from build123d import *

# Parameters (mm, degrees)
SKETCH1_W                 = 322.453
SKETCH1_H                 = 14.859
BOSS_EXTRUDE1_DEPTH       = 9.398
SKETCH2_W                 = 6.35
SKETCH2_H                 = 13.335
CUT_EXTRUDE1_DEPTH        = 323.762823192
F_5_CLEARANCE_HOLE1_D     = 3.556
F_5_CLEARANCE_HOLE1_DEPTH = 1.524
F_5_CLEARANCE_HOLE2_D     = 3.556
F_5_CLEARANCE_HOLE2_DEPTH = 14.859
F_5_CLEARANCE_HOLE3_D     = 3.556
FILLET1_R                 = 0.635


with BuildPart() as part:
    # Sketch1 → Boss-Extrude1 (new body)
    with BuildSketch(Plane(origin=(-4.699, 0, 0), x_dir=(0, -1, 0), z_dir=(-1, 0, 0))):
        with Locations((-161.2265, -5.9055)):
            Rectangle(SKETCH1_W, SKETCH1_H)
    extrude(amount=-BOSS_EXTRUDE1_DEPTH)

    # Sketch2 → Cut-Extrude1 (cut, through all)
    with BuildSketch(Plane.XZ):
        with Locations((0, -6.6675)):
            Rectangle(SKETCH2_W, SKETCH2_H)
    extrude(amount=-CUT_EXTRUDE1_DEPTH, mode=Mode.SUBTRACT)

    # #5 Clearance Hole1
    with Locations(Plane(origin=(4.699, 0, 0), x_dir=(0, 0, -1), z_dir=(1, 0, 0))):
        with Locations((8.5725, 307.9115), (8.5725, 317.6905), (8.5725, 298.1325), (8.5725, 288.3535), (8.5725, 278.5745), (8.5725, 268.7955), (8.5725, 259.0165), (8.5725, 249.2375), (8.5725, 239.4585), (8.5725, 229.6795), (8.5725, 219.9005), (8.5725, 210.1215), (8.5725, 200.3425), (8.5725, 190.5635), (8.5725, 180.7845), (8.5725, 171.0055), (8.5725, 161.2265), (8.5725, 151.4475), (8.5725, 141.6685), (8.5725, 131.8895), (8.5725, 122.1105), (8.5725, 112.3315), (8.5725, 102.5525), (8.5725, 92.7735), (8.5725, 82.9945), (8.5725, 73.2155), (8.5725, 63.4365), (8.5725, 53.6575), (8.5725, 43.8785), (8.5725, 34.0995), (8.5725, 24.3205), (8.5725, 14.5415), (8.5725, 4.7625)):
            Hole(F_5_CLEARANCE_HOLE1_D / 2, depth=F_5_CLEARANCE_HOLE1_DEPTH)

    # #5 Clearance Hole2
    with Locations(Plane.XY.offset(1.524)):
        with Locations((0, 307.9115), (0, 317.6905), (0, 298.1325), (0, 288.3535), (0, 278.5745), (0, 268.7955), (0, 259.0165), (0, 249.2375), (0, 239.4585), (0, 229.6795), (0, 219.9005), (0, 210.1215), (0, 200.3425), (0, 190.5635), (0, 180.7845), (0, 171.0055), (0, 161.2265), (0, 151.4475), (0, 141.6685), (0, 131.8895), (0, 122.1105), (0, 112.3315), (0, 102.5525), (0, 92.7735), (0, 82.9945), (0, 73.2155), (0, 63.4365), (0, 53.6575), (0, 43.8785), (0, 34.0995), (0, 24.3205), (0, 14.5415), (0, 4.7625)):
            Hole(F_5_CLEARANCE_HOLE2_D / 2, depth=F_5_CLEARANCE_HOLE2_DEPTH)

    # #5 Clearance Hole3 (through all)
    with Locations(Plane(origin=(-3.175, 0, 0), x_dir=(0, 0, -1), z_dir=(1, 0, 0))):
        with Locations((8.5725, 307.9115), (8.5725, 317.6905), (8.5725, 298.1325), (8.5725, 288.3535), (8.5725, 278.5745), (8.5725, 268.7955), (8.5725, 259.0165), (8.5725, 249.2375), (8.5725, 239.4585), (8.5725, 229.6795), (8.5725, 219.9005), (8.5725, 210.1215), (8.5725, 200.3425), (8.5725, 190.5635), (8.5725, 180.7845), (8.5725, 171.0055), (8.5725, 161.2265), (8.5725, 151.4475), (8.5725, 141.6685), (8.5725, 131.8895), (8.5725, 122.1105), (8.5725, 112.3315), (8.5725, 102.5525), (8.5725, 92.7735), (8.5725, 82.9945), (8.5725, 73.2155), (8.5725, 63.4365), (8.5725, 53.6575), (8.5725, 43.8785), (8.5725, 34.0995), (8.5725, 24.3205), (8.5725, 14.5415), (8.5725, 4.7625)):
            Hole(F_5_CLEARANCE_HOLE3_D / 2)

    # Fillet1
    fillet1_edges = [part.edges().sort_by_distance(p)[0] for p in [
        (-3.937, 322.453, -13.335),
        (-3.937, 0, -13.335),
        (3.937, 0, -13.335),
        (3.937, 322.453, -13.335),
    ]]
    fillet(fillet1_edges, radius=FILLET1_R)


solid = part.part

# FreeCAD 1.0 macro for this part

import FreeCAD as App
import Part
import Sketcher

V = App.Vector
Q = App.Units.Quantity


def edges_at(feature, points):
    """Names of the edges that pass closest to the given points."""
    edges = feature.Shape.Edges
    near = lambda p: min(range(len(edges)), key=lambda i: edges[i].distToShape(Part.Vertex(*p))[0])
    return sorted({f"Edge{near(p) + 1}" for p in points})

doc = App.newDocument("Part")
params = doc.addObject("Spreadsheet::Sheet", "Params")
for row, (alias, value) in enumerate([
    ("sketch1_width", "12.695 in"),
    ("sketch1_height", "0.585 in"),
    ("pad1_length", "0.37 in"),
    ("sketch2_width", "0.25 in"),
    ("sketch2_height", "0.525 in"),
    ("sketch3_diameter", "0.14 in"),
    ("hole_diameter", "0.14 in"),
    ("hole_depth", "0.06 in"),
    ("sketch4_diameter", "0.14 in"),
    ("hole2_diameter", "0.14 in"),
    ("hole2_depth", "0.585 in"),
    ("sketch5_diameter", "0.14 in"),
    ("hole3_diameter", "0.14 in"),
    ("fillet_radius", "0.025 in"),
], start=1):
    params.set(f"A{row}", alias)
    params.set(f"B{row}", "=" + value)
    params.setAlias(f"B{row}", alias)

body = doc.addObject("PartDesign::Body", "Body")

# Sketch on YZ plane
sketch1 = doc.addObject("Sketcher::SketchObject", "Sketch")
body.addObject(sketch1)
sketch1.AttachmentSupport = (doc.YZ_Plane, [""])
sketch1.MapMode = "FlatFace"
sketch1.AttachmentOffset = App.Placement(V(0, 0, -0.185 * 25.4), App.Rotation())
sketch1.addGeometry(Part.LineSegment(V(322.453, 1.524, 0), V(322.453, -13.335, 0)), False)
sketch1.addGeometry(Part.LineSegment(V(322.453, -13.335, 0), V(0, -13.335, 0)), False)
sketch1.addGeometry(Part.LineSegment(V(0, -13.335, 0), V(0, 1.524, 0)), False)
sketch1.addGeometry(Part.LineSegment(V(0, 1.524, 0), V(322.453, 1.524, 0)), False)
sketch1.addConstraint(Sketcher.Constraint("Coincident", 0, 2, 1, 1))
sketch1.addConstraint(Sketcher.Constraint("Coincident", 1, 2, 2, 1))
sketch1.addConstraint(Sketcher.Constraint("Coincident", 2, 2, 3, 1))
sketch1.addConstraint(Sketcher.Constraint("Coincident", 3, 2, 0, 1))
sketch1.addConstraint(Sketcher.Constraint("Vertical", 0))
sketch1.addConstraint(Sketcher.Constraint("Horizontal", 1))
sketch1.addConstraint(Sketcher.Constraint("Vertical", 2))
sketch1.addConstraint(Sketcher.Constraint("Horizontal", 3))
sketch1.addConstraint(Sketcher.Constraint("PointOnObject", 1, 2, -2))
sketch1.addConstraint(Sketcher.Constraint("DistanceX", 1, 2, 1, 1, Q("12.695 in")))
sketch1.addConstraint(Sketcher.Constraint("DistanceY", 0, 2, 0, 1, Q("0.585 in")))
sketch1.addConstraint(Sketcher.Constraint("DistanceY", -1, 1, 2, 2, Q("0.06 in")))
sketch1.setExpression("Constraints[9]", "Params.sketch1_width")
sketch1.setExpression("Constraints[10]", "Params.sketch1_height")
pad1 = doc.addObject("PartDesign::Pad", "Pad")
body.addObject(pad1)
pad1.Profile = sketch1
pad1.setExpression("Length", "Params.pad1_length")

# Sketch on XZ plane
sketch2 = doc.addObject("Sketcher::SketchObject", "Sketch001")
body.addObject(sketch2)
sketch2.AttachmentSupport = (doc.XZ_Plane, [""])
sketch2.MapMode = "FlatFace"
sketch2.addGeometry(Part.LineSegment(V(-3.175, 0, 0), V(-3.175, -13.335, 0)), False)
sketch2.addGeometry(Part.LineSegment(V(-3.175, -13.335, 0), V(3.175, -13.335, 0)), False)
sketch2.addGeometry(Part.LineSegment(V(3.175, -13.335, 0), V(3.175, 0, 0)), False)
sketch2.addGeometry(Part.LineSegment(V(3.175, 0, 0), V(-3.175, 0, 0)), False)
sketch2.addConstraint(Sketcher.Constraint("Coincident", 0, 2, 1, 1))
sketch2.addConstraint(Sketcher.Constraint("Coincident", 1, 2, 2, 1))
sketch2.addConstraint(Sketcher.Constraint("Coincident", 2, 2, 3, 1))
sketch2.addConstraint(Sketcher.Constraint("Coincident", 3, 2, 0, 1))
sketch2.addConstraint(Sketcher.Constraint("Vertical", 0))
sketch2.addConstraint(Sketcher.Constraint("Horizontal", 1))
sketch2.addConstraint(Sketcher.Constraint("Vertical", 2))
sketch2.addConstraint(Sketcher.Constraint("Horizontal", 3))
sketch2.addConstraint(Sketcher.Constraint("Symmetric", 2, 2, 3, 2, -1, 1))
sketch2.addConstraint(Sketcher.Constraint("DistanceX", 1, 1, 1, 2, Q("0.25 in")))
sketch2.addConstraint(Sketcher.Constraint("DistanceY", 0, 2, 0, 1, Q("0.525 in")))
sketch2.setExpression("Constraints[9]", "Params.sketch2_width")
sketch2.setExpression("Constraints[10]", "Params.sketch2_height")
pocket1 = doc.addObject("PartDesign::Pocket", "Pocket")
body.addObject(pocket1)
pocket1.Profile = sketch2
pocket1.Type = "ThroughAll"

# Sketch on YZ plane
sketch3 = doc.addObject("Sketcher::SketchObject", "Sketch002")
body.addObject(sketch3)
sketch3.AttachmentSupport = (doc.YZ_Plane, [""])
sketch3.MapMode = "FlatFace"
sketch3.AttachmentOffset = App.Placement(V(0, 0, 0.185 * 25.4), App.Rotation())
sketch3.addGeometry(Part.Circle(V(307.9115, -8.5725, 0), V(0, 0, 1), 1.778), False)
sketch3.addGeometry(Part.Circle(V(317.6905, -8.5725, 0), V(0, 0, 1), 1.778), False)
sketch3.addGeometry(Part.Circle(V(298.1325, -8.5725, 0), V(0, 0, 1), 1.778), False)
sketch3.addGeometry(Part.Circle(V(288.3535, -8.5725, 0), V(0, 0, 1), 1.778), False)
sketch3.addGeometry(Part.Circle(V(278.5745, -8.5725, 0), V(0, 0, 1), 1.778), False)
sketch3.addGeometry(Part.Circle(V(268.7955, -8.5725, 0), V(0, 0, 1), 1.778), False)
sketch3.addGeometry(Part.Circle(V(259.0165, -8.5725, 0), V(0, 0, 1), 1.778), False)
sketch3.addGeometry(Part.Circle(V(249.2375, -8.5725, 0), V(0, 0, 1), 1.778), False)
sketch3.addGeometry(Part.Circle(V(239.4585, -8.5725, 0), V(0, 0, 1), 1.778), False)
sketch3.addGeometry(Part.Circle(V(229.6795, -8.5725, 0), V(0, 0, 1), 1.778), False)
sketch3.addGeometry(Part.Circle(V(219.9005, -8.5725, 0), V(0, 0, 1), 1.778), False)
sketch3.addGeometry(Part.Circle(V(210.1215, -8.5725, 0), V(0, 0, 1), 1.778), False)
sketch3.addGeometry(Part.Circle(V(200.3425, -8.5725, 0), V(0, 0, 1), 1.778), False)
sketch3.addGeometry(Part.Circle(V(190.5635, -8.5725, 0), V(0, 0, 1), 1.778), False)
sketch3.addGeometry(Part.Circle(V(180.7845, -8.5725, 0), V(0, 0, 1), 1.778), False)
sketch3.addGeometry(Part.Circle(V(171.0055, -8.5725, 0), V(0, 0, 1), 1.778), False)
sketch3.addGeometry(Part.Circle(V(161.2265, -8.5725, 0), V(0, 0, 1), 1.778), False)
sketch3.addGeometry(Part.Circle(V(151.4475, -8.5725, 0), V(0, 0, 1), 1.778), False)
sketch3.addGeometry(Part.Circle(V(141.6685, -8.5725, 0), V(0, 0, 1), 1.778), False)
sketch3.addGeometry(Part.Circle(V(131.8895, -8.5725, 0), V(0, 0, 1), 1.778), False)
sketch3.addGeometry(Part.Circle(V(122.1105, -8.5725, 0), V(0, 0, 1), 1.778), False)
sketch3.addGeometry(Part.Circle(V(112.3315, -8.5725, 0), V(0, 0, 1), 1.778), False)
sketch3.addGeometry(Part.Circle(V(102.5525, -8.5725, 0), V(0, 0, 1), 1.778), False)
sketch3.addGeometry(Part.Circle(V(92.7735, -8.5725, 0), V(0, 0, 1), 1.778), False)
sketch3.addGeometry(Part.Circle(V(82.9945, -8.5725, 0), V(0, 0, 1), 1.778), False)
sketch3.addGeometry(Part.Circle(V(73.2155, -8.5725, 0), V(0, 0, 1), 1.778), False)
sketch3.addGeometry(Part.Circle(V(63.4365, -8.5725, 0), V(0, 0, 1), 1.778), False)
sketch3.addGeometry(Part.Circle(V(53.6575, -8.5725, 0), V(0, 0, 1), 1.778), False)
sketch3.addGeometry(Part.Circle(V(43.8785, -8.5725, 0), V(0, 0, 1), 1.778), False)
sketch3.addGeometry(Part.Circle(V(34.0995, -8.5725, 0), V(0, 0, 1), 1.778), False)
sketch3.addGeometry(Part.Circle(V(24.3205, -8.5725, 0), V(0, 0, 1), 1.778), False)
sketch3.addGeometry(Part.Circle(V(14.5415, -8.5725, 0), V(0, 0, 1), 1.778), False)
sketch3.addGeometry(Part.Circle(V(4.7625, -8.5725, 0), V(0, 0, 1), 1.778), False)
sketch3.addConstraint(Sketcher.Constraint("Equal", 0, 1))
sketch3.addConstraint(Sketcher.Constraint("Equal", 1, 2))
sketch3.addConstraint(Sketcher.Constraint("Equal", 2, 3))
sketch3.addConstraint(Sketcher.Constraint("Equal", 3, 4))
sketch3.addConstraint(Sketcher.Constraint("Equal", 4, 5))
sketch3.addConstraint(Sketcher.Constraint("Equal", 5, 6))
sketch3.addConstraint(Sketcher.Constraint("Equal", 6, 7))
sketch3.addConstraint(Sketcher.Constraint("Equal", 7, 8))
sketch3.addConstraint(Sketcher.Constraint("Equal", 8, 9))
sketch3.addConstraint(Sketcher.Constraint("Equal", 9, 10))
sketch3.addConstraint(Sketcher.Constraint("Equal", 10, 11))
sketch3.addConstraint(Sketcher.Constraint("Equal", 11, 12))
sketch3.addConstraint(Sketcher.Constraint("Equal", 12, 13))
sketch3.addConstraint(Sketcher.Constraint("Equal", 13, 14))
sketch3.addConstraint(Sketcher.Constraint("Equal", 14, 15))
sketch3.addConstraint(Sketcher.Constraint("Equal", 15, 16))
sketch3.addConstraint(Sketcher.Constraint("Equal", 16, 17))
sketch3.addConstraint(Sketcher.Constraint("Equal", 17, 18))
sketch3.addConstraint(Sketcher.Constraint("Equal", 18, 19))
sketch3.addConstraint(Sketcher.Constraint("Equal", 19, 20))
sketch3.addConstraint(Sketcher.Constraint("Equal", 20, 21))
sketch3.addConstraint(Sketcher.Constraint("Equal", 21, 22))
sketch3.addConstraint(Sketcher.Constraint("Equal", 22, 23))
sketch3.addConstraint(Sketcher.Constraint("Equal", 23, 24))
sketch3.addConstraint(Sketcher.Constraint("Equal", 24, 25))
sketch3.addConstraint(Sketcher.Constraint("Equal", 25, 26))
sketch3.addConstraint(Sketcher.Constraint("Equal", 26, 27))
sketch3.addConstraint(Sketcher.Constraint("Equal", 27, 28))
sketch3.addConstraint(Sketcher.Constraint("Equal", 28, 29))
sketch3.addConstraint(Sketcher.Constraint("Equal", 29, 30))
sketch3.addConstraint(Sketcher.Constraint("Equal", 30, 31))
sketch3.addConstraint(Sketcher.Constraint("Equal", 31, 32))
sketch3.addConstraint(Sketcher.Constraint("Horizontal", 0, 3, 1, 3))
sketch3.addConstraint(Sketcher.Constraint("Horizontal", 1, 3, 2, 3))
sketch3.addConstraint(Sketcher.Constraint("Horizontal", 2, 3, 3, 3))
sketch3.addConstraint(Sketcher.Constraint("Horizontal", 3, 3, 4, 3))
sketch3.addConstraint(Sketcher.Constraint("Horizontal", 4, 3, 5, 3))
sketch3.addConstraint(Sketcher.Constraint("Horizontal", 5, 3, 6, 3))
sketch3.addConstraint(Sketcher.Constraint("Horizontal", 6, 3, 7, 3))
sketch3.addConstraint(Sketcher.Constraint("Horizontal", 7, 3, 8, 3))
sketch3.addConstraint(Sketcher.Constraint("Horizontal", 8, 3, 9, 3))
sketch3.addConstraint(Sketcher.Constraint("Horizontal", 9, 3, 10, 3))
sketch3.addConstraint(Sketcher.Constraint("Horizontal", 10, 3, 11, 3))
sketch3.addConstraint(Sketcher.Constraint("Horizontal", 11, 3, 12, 3))
sketch3.addConstraint(Sketcher.Constraint("Horizontal", 12, 3, 13, 3))
sketch3.addConstraint(Sketcher.Constraint("Horizontal", 13, 3, 14, 3))
sketch3.addConstraint(Sketcher.Constraint("Horizontal", 14, 3, 15, 3))
sketch3.addConstraint(Sketcher.Constraint("Horizontal", 15, 3, 16, 3))
sketch3.addConstraint(Sketcher.Constraint("Horizontal", 16, 3, 17, 3))
sketch3.addConstraint(Sketcher.Constraint("Horizontal", 17, 3, 18, 3))
sketch3.addConstraint(Sketcher.Constraint("Horizontal", 18, 3, 19, 3))
sketch3.addConstraint(Sketcher.Constraint("Horizontal", 19, 3, 20, 3))
sketch3.addConstraint(Sketcher.Constraint("Horizontal", 20, 3, 21, 3))
sketch3.addConstraint(Sketcher.Constraint("Horizontal", 21, 3, 22, 3))
sketch3.addConstraint(Sketcher.Constraint("Horizontal", 22, 3, 23, 3))
sketch3.addConstraint(Sketcher.Constraint("Horizontal", 23, 3, 24, 3))
sketch3.addConstraint(Sketcher.Constraint("Horizontal", 24, 3, 25, 3))
sketch3.addConstraint(Sketcher.Constraint("Horizontal", 25, 3, 26, 3))
sketch3.addConstraint(Sketcher.Constraint("Horizontal", 26, 3, 27, 3))
sketch3.addConstraint(Sketcher.Constraint("Horizontal", 27, 3, 28, 3))
sketch3.addConstraint(Sketcher.Constraint("Horizontal", 28, 3, 29, 3))
sketch3.addConstraint(Sketcher.Constraint("Horizontal", 29, 3, 30, 3))
sketch3.addConstraint(Sketcher.Constraint("Horizontal", 30, 3, 31, 3))
sketch3.addConstraint(Sketcher.Constraint("Horizontal", 31, 3, 32, 3))
sketch3.addConstraint(Sketcher.Constraint("Diameter", 0, Q("0.14 in")))
sketch3.addConstraint(Sketcher.Constraint("DistanceX", 2, 3, 1, 3, Q("0.77 in")))
sketch3.addConstraint(Sketcher.Constraint("DistanceX", 3, 3, 0, 3, Q("0.77 in")))
sketch3.addConstraint(Sketcher.Constraint("DistanceX", 4, 3, 2, 3, Q("0.77 in")))
sketch3.addConstraint(Sketcher.Constraint("DistanceX", 5, 3, 3, 3, Q("0.77 in")))
sketch3.addConstraint(Sketcher.Constraint("DistanceX", 6, 3, 4, 3, Q("0.77 in")))
sketch3.addConstraint(Sketcher.Constraint("DistanceX", 7, 3, 5, 3, Q("0.77 in")))
sketch3.addConstraint(Sketcher.Constraint("DistanceX", 8, 3, 6, 3, Q("0.77 in")))
sketch3.addConstraint(Sketcher.Constraint("DistanceX", 9, 3, 7, 3, Q("0.77 in")))
sketch3.addConstraint(Sketcher.Constraint("DistanceX", 10, 3, 8, 3, Q("0.77 in")))
sketch3.addConstraint(Sketcher.Constraint("DistanceX", 11, 3, 9, 3, Q("0.77 in")))
sketch3.addConstraint(Sketcher.Constraint("DistanceX", 12, 3, 10, 3, Q("0.77 in")))
sketch3.addConstraint(Sketcher.Constraint("DistanceX", 13, 3, 11, 3, Q("0.77 in")))
sketch3.addConstraint(Sketcher.Constraint("DistanceX", 14, 3, 12, 3, Q("0.77 in")))
sketch3.addConstraint(Sketcher.Constraint("DistanceX", 15, 3, 13, 3, Q("0.77 in")))
sketch3.addConstraint(Sketcher.Constraint("DistanceX", 16, 3, 14, 3, Q("0.77 in")))
sketch3.addConstraint(Sketcher.Constraint("DistanceX", 17, 3, 15, 3, Q("0.77 in")))
sketch3.addConstraint(Sketcher.Constraint("DistanceX", 18, 3, 16, 3, Q("0.77 in")))
sketch3.addConstraint(Sketcher.Constraint("DistanceX", 19, 3, 17, 3, Q("0.77 in")))
sketch3.addConstraint(Sketcher.Constraint("DistanceX", 20, 3, 18, 3, Q("0.77 in")))
sketch3.addConstraint(Sketcher.Constraint("DistanceX", 21, 3, 19, 3, Q("0.77 in")))
sketch3.addConstraint(Sketcher.Constraint("DistanceX", 22, 3, 20, 3, Q("0.77 in")))
sketch3.addConstraint(Sketcher.Constraint("DistanceX", 23, 3, 21, 3, Q("0.77 in")))
sketch3.addConstraint(Sketcher.Constraint("DistanceX", 24, 3, 22, 3, Q("0.77 in")))
sketch3.addConstraint(Sketcher.Constraint("DistanceX", 25, 3, 23, 3, Q("0.77 in")))
sketch3.addConstraint(Sketcher.Constraint("DistanceX", 26, 3, 24, 3, Q("0.77 in")))
sketch3.addConstraint(Sketcher.Constraint("DistanceX", 27, 3, 25, 3, Q("0.77 in")))
sketch3.addConstraint(Sketcher.Constraint("DistanceX", 28, 3, 26, 3, Q("0.77 in")))
sketch3.addConstraint(Sketcher.Constraint("DistanceX", 29, 3, 27, 3, Q("0.77 in")))
sketch3.addConstraint(Sketcher.Constraint("DistanceX", 30, 3, 28, 3, Q("0.77 in")))
sketch3.addConstraint(Sketcher.Constraint("DistanceX", 31, 3, 29, 3, Q("0.77 in")))
sketch3.addConstraint(Sketcher.Constraint("DistanceX", 32, 3, 30, 3, Q("0.77 in")))
sketch3.addConstraint(Sketcher.Constraint("DistanceX", -1, 1, 7, 3, Q("9.8125 in")))
sketch3.addConstraint(Sketcher.Constraint("DistanceX", -1, 1, 32, 3, Q("0.1875 in")))
sketch3.addConstraint(Sketcher.Constraint("DistanceY", 0, 3, -1, 1, Q("0.3375 in")))
sketch3.setExpression("Constraints[64]", "Params.sketch3_diameter")
doc.recompute()
hole = doc.addObject("PartDesign::Hole", "Hole")
body.addObject(hole)
hole.Profile = sketch3
hole.ThreadType = "None"
hole.setExpression("Diameter", "Params.hole_diameter")
hole.DepthType = "Dimension"
hole.setExpression("Depth", "Params.hole_depth")
hole.DrillPoint = "Flat"

# Sketch on XY plane
sketch4 = doc.addObject("Sketcher::SketchObject", "Sketch003")
body.addObject(sketch4)
sketch4.AttachmentSupport = (doc.XY_Plane, [""])
sketch4.MapMode = "FlatFace"
sketch4.AttachmentOffset = App.Placement(V(0, 0, 0.06 * 25.4), App.Rotation())
sketch4.addGeometry(Part.Circle(V(0, 307.9115, 0), V(0, 0, 1), 1.778), False)
sketch4.addGeometry(Part.Circle(V(0, 317.6905, 0), V(0, 0, 1), 1.778), False)
sketch4.addGeometry(Part.Circle(V(0, 298.1325, 0), V(0, 0, 1), 1.778), False)
sketch4.addGeometry(Part.Circle(V(0, 288.3535, 0), V(0, 0, 1), 1.778), False)
sketch4.addGeometry(Part.Circle(V(0, 278.5745, 0), V(0, 0, 1), 1.778), False)
sketch4.addGeometry(Part.Circle(V(0, 268.7955, 0), V(0, 0, 1), 1.778), False)
sketch4.addGeometry(Part.Circle(V(0, 259.0165, 0), V(0, 0, 1), 1.778), False)
sketch4.addGeometry(Part.Circle(V(0, 249.2375, 0), V(0, 0, 1), 1.778), False)
sketch4.addGeometry(Part.Circle(V(0, 239.4585, 0), V(0, 0, 1), 1.778), False)
sketch4.addGeometry(Part.Circle(V(0, 229.6795, 0), V(0, 0, 1), 1.778), False)
sketch4.addGeometry(Part.Circle(V(0, 219.9005, 0), V(0, 0, 1), 1.778), False)
sketch4.addGeometry(Part.Circle(V(0, 210.1215, 0), V(0, 0, 1), 1.778), False)
sketch4.addGeometry(Part.Circle(V(0, 200.3425, 0), V(0, 0, 1), 1.778), False)
sketch4.addGeometry(Part.Circle(V(0, 190.5635, 0), V(0, 0, 1), 1.778), False)
sketch4.addGeometry(Part.Circle(V(0, 180.7845, 0), V(0, 0, 1), 1.778), False)
sketch4.addGeometry(Part.Circle(V(0, 171.0055, 0), V(0, 0, 1), 1.778), False)
sketch4.addGeometry(Part.Circle(V(0, 161.2265, 0), V(0, 0, 1), 1.778), False)
sketch4.addGeometry(Part.Circle(V(0, 151.4475, 0), V(0, 0, 1), 1.778), False)
sketch4.addGeometry(Part.Circle(V(0, 141.6685, 0), V(0, 0, 1), 1.778), False)
sketch4.addGeometry(Part.Circle(V(0, 131.8895, 0), V(0, 0, 1), 1.778), False)
sketch4.addGeometry(Part.Circle(V(0, 122.1105, 0), V(0, 0, 1), 1.778), False)
sketch4.addGeometry(Part.Circle(V(0, 112.3315, 0), V(0, 0, 1), 1.778), False)
sketch4.addGeometry(Part.Circle(V(0, 102.5525, 0), V(0, 0, 1), 1.778), False)
sketch4.addGeometry(Part.Circle(V(0, 92.7735, 0), V(0, 0, 1), 1.778), False)
sketch4.addGeometry(Part.Circle(V(0, 82.9945, 0), V(0, 0, 1), 1.778), False)
sketch4.addGeometry(Part.Circle(V(0, 73.2155, 0), V(0, 0, 1), 1.778), False)
sketch4.addGeometry(Part.Circle(V(0, 63.4365, 0), V(0, 0, 1), 1.778), False)
sketch4.addGeometry(Part.Circle(V(0, 53.6575, 0), V(0, 0, 1), 1.778), False)
sketch4.addGeometry(Part.Circle(V(0, 43.8785, 0), V(0, 0, 1), 1.778), False)
sketch4.addGeometry(Part.Circle(V(0, 34.0995, 0), V(0, 0, 1), 1.778), False)
sketch4.addGeometry(Part.Circle(V(0, 24.3205, 0), V(0, 0, 1), 1.778), False)
sketch4.addGeometry(Part.Circle(V(0, 14.5415, 0), V(0, 0, 1), 1.778), False)
sketch4.addGeometry(Part.Circle(V(0, 4.7625, 0), V(0, 0, 1), 1.778), False)
sketch4.addConstraint(Sketcher.Constraint("Equal", 0, 1))
sketch4.addConstraint(Sketcher.Constraint("Equal", 1, 2))
sketch4.addConstraint(Sketcher.Constraint("Equal", 2, 3))
sketch4.addConstraint(Sketcher.Constraint("Equal", 3, 4))
sketch4.addConstraint(Sketcher.Constraint("Equal", 4, 5))
sketch4.addConstraint(Sketcher.Constraint("Equal", 5, 6))
sketch4.addConstraint(Sketcher.Constraint("Equal", 6, 7))
sketch4.addConstraint(Sketcher.Constraint("Equal", 7, 8))
sketch4.addConstraint(Sketcher.Constraint("Equal", 8, 9))
sketch4.addConstraint(Sketcher.Constraint("Equal", 9, 10))
sketch4.addConstraint(Sketcher.Constraint("Equal", 10, 11))
sketch4.addConstraint(Sketcher.Constraint("Equal", 11, 12))
sketch4.addConstraint(Sketcher.Constraint("Equal", 12, 13))
sketch4.addConstraint(Sketcher.Constraint("Equal", 13, 14))
sketch4.addConstraint(Sketcher.Constraint("Equal", 14, 15))
sketch4.addConstraint(Sketcher.Constraint("Equal", 15, 16))
sketch4.addConstraint(Sketcher.Constraint("Equal", 16, 17))
sketch4.addConstraint(Sketcher.Constraint("Equal", 17, 18))
sketch4.addConstraint(Sketcher.Constraint("Equal", 18, 19))
sketch4.addConstraint(Sketcher.Constraint("Equal", 19, 20))
sketch4.addConstraint(Sketcher.Constraint("Equal", 20, 21))
sketch4.addConstraint(Sketcher.Constraint("Equal", 21, 22))
sketch4.addConstraint(Sketcher.Constraint("Equal", 22, 23))
sketch4.addConstraint(Sketcher.Constraint("Equal", 23, 24))
sketch4.addConstraint(Sketcher.Constraint("Equal", 24, 25))
sketch4.addConstraint(Sketcher.Constraint("Equal", 25, 26))
sketch4.addConstraint(Sketcher.Constraint("Equal", 26, 27))
sketch4.addConstraint(Sketcher.Constraint("Equal", 27, 28))
sketch4.addConstraint(Sketcher.Constraint("Equal", 28, 29))
sketch4.addConstraint(Sketcher.Constraint("Equal", 29, 30))
sketch4.addConstraint(Sketcher.Constraint("Equal", 30, 31))
sketch4.addConstraint(Sketcher.Constraint("Equal", 31, 32))
sketch4.addConstraint(Sketcher.Constraint("PointOnObject", 0, 3, -2))
sketch4.addConstraint(Sketcher.Constraint("PointOnObject", 1, 3, -2))
sketch4.addConstraint(Sketcher.Constraint("PointOnObject", 2, 3, -2))
sketch4.addConstraint(Sketcher.Constraint("PointOnObject", 3, 3, -2))
sketch4.addConstraint(Sketcher.Constraint("PointOnObject", 4, 3, -2))
sketch4.addConstraint(Sketcher.Constraint("PointOnObject", 5, 3, -2))
sketch4.addConstraint(Sketcher.Constraint("PointOnObject", 6, 3, -2))
sketch4.addConstraint(Sketcher.Constraint("PointOnObject", 7, 3, -2))
sketch4.addConstraint(Sketcher.Constraint("PointOnObject", 8, 3, -2))
sketch4.addConstraint(Sketcher.Constraint("PointOnObject", 9, 3, -2))
sketch4.addConstraint(Sketcher.Constraint("PointOnObject", 10, 3, -2))
sketch4.addConstraint(Sketcher.Constraint("PointOnObject", 11, 3, -2))
sketch4.addConstraint(Sketcher.Constraint("PointOnObject", 12, 3, -2))
sketch4.addConstraint(Sketcher.Constraint("PointOnObject", 13, 3, -2))
sketch4.addConstraint(Sketcher.Constraint("PointOnObject", 14, 3, -2))
sketch4.addConstraint(Sketcher.Constraint("PointOnObject", 15, 3, -2))
sketch4.addConstraint(Sketcher.Constraint("PointOnObject", 16, 3, -2))
sketch4.addConstraint(Sketcher.Constraint("PointOnObject", 17, 3, -2))
sketch4.addConstraint(Sketcher.Constraint("PointOnObject", 18, 3, -2))
sketch4.addConstraint(Sketcher.Constraint("PointOnObject", 19, 3, -2))
sketch4.addConstraint(Sketcher.Constraint("PointOnObject", 20, 3, -2))
sketch4.addConstraint(Sketcher.Constraint("PointOnObject", 21, 3, -2))
sketch4.addConstraint(Sketcher.Constraint("PointOnObject", 22, 3, -2))
sketch4.addConstraint(Sketcher.Constraint("PointOnObject", 23, 3, -2))
sketch4.addConstraint(Sketcher.Constraint("PointOnObject", 24, 3, -2))
sketch4.addConstraint(Sketcher.Constraint("PointOnObject", 25, 3, -2))
sketch4.addConstraint(Sketcher.Constraint("PointOnObject", 26, 3, -2))
sketch4.addConstraint(Sketcher.Constraint("PointOnObject", 27, 3, -2))
sketch4.addConstraint(Sketcher.Constraint("PointOnObject", 28, 3, -2))
sketch4.addConstraint(Sketcher.Constraint("PointOnObject", 29, 3, -2))
sketch4.addConstraint(Sketcher.Constraint("PointOnObject", 30, 3, -2))
sketch4.addConstraint(Sketcher.Constraint("PointOnObject", 31, 3, -2))
sketch4.addConstraint(Sketcher.Constraint("PointOnObject", 32, 3, -2))
sketch4.addConstraint(Sketcher.Constraint("Diameter", 0, Q("0.14 in")))
sketch4.addConstraint(Sketcher.Constraint("DistanceY", 2, 3, 1, 3, Q("0.77 in")))
sketch4.addConstraint(Sketcher.Constraint("DistanceY", 3, 3, 0, 3, Q("0.77 in")))
sketch4.addConstraint(Sketcher.Constraint("DistanceY", 4, 3, 2, 3, Q("0.77 in")))
sketch4.addConstraint(Sketcher.Constraint("DistanceY", 5, 3, 3, 3, Q("0.77 in")))
sketch4.addConstraint(Sketcher.Constraint("DistanceY", 6, 3, 4, 3, Q("0.77 in")))
sketch4.addConstraint(Sketcher.Constraint("DistanceY", 7, 3, 5, 3, Q("0.77 in")))
sketch4.addConstraint(Sketcher.Constraint("DistanceY", 8, 3, 6, 3, Q("0.77 in")))
sketch4.addConstraint(Sketcher.Constraint("DistanceY", 9, 3, 7, 3, Q("0.77 in")))
sketch4.addConstraint(Sketcher.Constraint("DistanceY", 10, 3, 8, 3, Q("0.77 in")))
sketch4.addConstraint(Sketcher.Constraint("DistanceY", 11, 3, 9, 3, Q("0.77 in")))
sketch4.addConstraint(Sketcher.Constraint("DistanceY", 12, 3, 10, 3, Q("0.77 in")))
sketch4.addConstraint(Sketcher.Constraint("DistanceY", 13, 3, 11, 3, Q("0.77 in")))
sketch4.addConstraint(Sketcher.Constraint("DistanceY", 14, 3, 12, 3, Q("0.77 in")))
sketch4.addConstraint(Sketcher.Constraint("DistanceY", 15, 3, 13, 3, Q("0.77 in")))
sketch4.addConstraint(Sketcher.Constraint("DistanceY", 16, 3, 14, 3, Q("0.77 in")))
sketch4.addConstraint(Sketcher.Constraint("DistanceY", 17, 3, 15, 3, Q("0.77 in")))
sketch4.addConstraint(Sketcher.Constraint("DistanceY", 18, 3, 16, 3, Q("0.77 in")))
sketch4.addConstraint(Sketcher.Constraint("DistanceY", 19, 3, 17, 3, Q("0.77 in")))
sketch4.addConstraint(Sketcher.Constraint("DistanceY", 20, 3, 18, 3, Q("0.77 in")))
sketch4.addConstraint(Sketcher.Constraint("DistanceY", 21, 3, 19, 3, Q("0.77 in")))
sketch4.addConstraint(Sketcher.Constraint("DistanceY", 22, 3, 20, 3, Q("0.77 in")))
sketch4.addConstraint(Sketcher.Constraint("DistanceY", 23, 3, 21, 3, Q("0.77 in")))
sketch4.addConstraint(Sketcher.Constraint("DistanceY", 24, 3, 22, 3, Q("0.77 in")))
sketch4.addConstraint(Sketcher.Constraint("DistanceY", 25, 3, 23, 3, Q("0.77 in")))
sketch4.addConstraint(Sketcher.Constraint("DistanceY", 26, 3, 24, 3, Q("0.77 in")))
sketch4.addConstraint(Sketcher.Constraint("DistanceY", 27, 3, 25, 3, Q("0.77 in")))
sketch4.addConstraint(Sketcher.Constraint("DistanceY", 28, 3, 26, 3, Q("0.77 in")))
sketch4.addConstraint(Sketcher.Constraint("DistanceY", 29, 3, 27, 3, Q("0.77 in")))
sketch4.addConstraint(Sketcher.Constraint("DistanceY", 30, 3, 28, 3, Q("0.77 in")))
sketch4.addConstraint(Sketcher.Constraint("DistanceY", 31, 3, 29, 3, Q("0.77 in")))
sketch4.addConstraint(Sketcher.Constraint("DistanceY", 32, 3, 30, 3, Q("0.77 in")))
sketch4.addConstraint(Sketcher.Constraint("DistanceY", -1, 1, 7, 3, Q("9.8125 in")))
sketch4.addConstraint(Sketcher.Constraint("DistanceY", -1, 1, 32, 3, Q("0.1875 in")))
sketch4.setExpression("Constraints[65]", "Params.sketch4_diameter")
doc.recompute()
hole2 = doc.addObject("PartDesign::Hole", "Hole001")
body.addObject(hole2)
hole2.Profile = sketch4
hole2.ThreadType = "None"
hole2.setExpression("Diameter", "Params.hole2_diameter")
hole2.DepthType = "Dimension"
hole2.setExpression("Depth", "Params.hole2_depth")
hole2.DrillPoint = "Flat"

# Sketch on YZ plane
sketch5 = doc.addObject("Sketcher::SketchObject", "Sketch004")
body.addObject(sketch5)
sketch5.AttachmentSupport = (doc.YZ_Plane, [""])
sketch5.MapMode = "FlatFace"
sketch5.AttachmentOffset = App.Placement(V(0, 0, -0.125 * 25.4), App.Rotation())
sketch5.addGeometry(Part.Circle(V(307.9115, -8.5725, 0), V(0, 0, 1), 1.778), False)
sketch5.addGeometry(Part.Circle(V(317.6905, -8.5725, 0), V(0, 0, 1), 1.778), False)
sketch5.addGeometry(Part.Circle(V(298.1325, -8.5725, 0), V(0, 0, 1), 1.778), False)
sketch5.addGeometry(Part.Circle(V(288.3535, -8.5725, 0), V(0, 0, 1), 1.778), False)
sketch5.addGeometry(Part.Circle(V(278.5745, -8.5725, 0), V(0, 0, 1), 1.778), False)
sketch5.addGeometry(Part.Circle(V(268.7955, -8.5725, 0), V(0, 0, 1), 1.778), False)
sketch5.addGeometry(Part.Circle(V(259.0165, -8.5725, 0), V(0, 0, 1), 1.778), False)
sketch5.addGeometry(Part.Circle(V(249.2375, -8.5725, 0), V(0, 0, 1), 1.778), False)
sketch5.addGeometry(Part.Circle(V(239.4585, -8.5725, 0), V(0, 0, 1), 1.778), False)
sketch5.addGeometry(Part.Circle(V(229.6795, -8.5725, 0), V(0, 0, 1), 1.778), False)
sketch5.addGeometry(Part.Circle(V(219.9005, -8.5725, 0), V(0, 0, 1), 1.778), False)
sketch5.addGeometry(Part.Circle(V(210.1215, -8.5725, 0), V(0, 0, 1), 1.778), False)
sketch5.addGeometry(Part.Circle(V(200.3425, -8.5725, 0), V(0, 0, 1), 1.778), False)
sketch5.addGeometry(Part.Circle(V(190.5635, -8.5725, 0), V(0, 0, 1), 1.778), False)
sketch5.addGeometry(Part.Circle(V(180.7845, -8.5725, 0), V(0, 0, 1), 1.778), False)
sketch5.addGeometry(Part.Circle(V(171.0055, -8.5725, 0), V(0, 0, 1), 1.778), False)
sketch5.addGeometry(Part.Circle(V(161.2265, -8.5725, 0), V(0, 0, 1), 1.778), False)
sketch5.addGeometry(Part.Circle(V(151.4475, -8.5725, 0), V(0, 0, 1), 1.778), False)
sketch5.addGeometry(Part.Circle(V(141.6685, -8.5725, 0), V(0, 0, 1), 1.778), False)
sketch5.addGeometry(Part.Circle(V(131.8895, -8.5725, 0), V(0, 0, 1), 1.778), False)
sketch5.addGeometry(Part.Circle(V(122.1105, -8.5725, 0), V(0, 0, 1), 1.778), False)
sketch5.addGeometry(Part.Circle(V(112.3315, -8.5725, 0), V(0, 0, 1), 1.778), False)
sketch5.addGeometry(Part.Circle(V(102.5525, -8.5725, 0), V(0, 0, 1), 1.778), False)
sketch5.addGeometry(Part.Circle(V(92.7735, -8.5725, 0), V(0, 0, 1), 1.778), False)
sketch5.addGeometry(Part.Circle(V(82.9945, -8.5725, 0), V(0, 0, 1), 1.778), False)
sketch5.addGeometry(Part.Circle(V(73.2155, -8.5725, 0), V(0, 0, 1), 1.778), False)
sketch5.addGeometry(Part.Circle(V(63.4365, -8.5725, 0), V(0, 0, 1), 1.778), False)
sketch5.addGeometry(Part.Circle(V(53.6575, -8.5725, 0), V(0, 0, 1), 1.778), False)
sketch5.addGeometry(Part.Circle(V(43.8785, -8.5725, 0), V(0, 0, 1), 1.778), False)
sketch5.addGeometry(Part.Circle(V(34.0995, -8.5725, 0), V(0, 0, 1), 1.778), False)
sketch5.addGeometry(Part.Circle(V(24.3205, -8.5725, 0), V(0, 0, 1), 1.778), False)
sketch5.addGeometry(Part.Circle(V(14.5415, -8.5725, 0), V(0, 0, 1), 1.778), False)
sketch5.addGeometry(Part.Circle(V(4.7625, -8.5725, 0), V(0, 0, 1), 1.778), False)
sketch5.addConstraint(Sketcher.Constraint("Equal", 0, 1))
sketch5.addConstraint(Sketcher.Constraint("Equal", 1, 2))
sketch5.addConstraint(Sketcher.Constraint("Equal", 2, 3))
sketch5.addConstraint(Sketcher.Constraint("Equal", 3, 4))
sketch5.addConstraint(Sketcher.Constraint("Equal", 4, 5))
sketch5.addConstraint(Sketcher.Constraint("Equal", 5, 6))
sketch5.addConstraint(Sketcher.Constraint("Equal", 6, 7))
sketch5.addConstraint(Sketcher.Constraint("Equal", 7, 8))
sketch5.addConstraint(Sketcher.Constraint("Equal", 8, 9))
sketch5.addConstraint(Sketcher.Constraint("Equal", 9, 10))
sketch5.addConstraint(Sketcher.Constraint("Equal", 10, 11))
sketch5.addConstraint(Sketcher.Constraint("Equal", 11, 12))
sketch5.addConstraint(Sketcher.Constraint("Equal", 12, 13))
sketch5.addConstraint(Sketcher.Constraint("Equal", 13, 14))
sketch5.addConstraint(Sketcher.Constraint("Equal", 14, 15))
sketch5.addConstraint(Sketcher.Constraint("Equal", 15, 16))
sketch5.addConstraint(Sketcher.Constraint("Equal", 16, 17))
sketch5.addConstraint(Sketcher.Constraint("Equal", 17, 18))
sketch5.addConstraint(Sketcher.Constraint("Equal", 18, 19))
sketch5.addConstraint(Sketcher.Constraint("Equal", 19, 20))
sketch5.addConstraint(Sketcher.Constraint("Equal", 20, 21))
sketch5.addConstraint(Sketcher.Constraint("Equal", 21, 22))
sketch5.addConstraint(Sketcher.Constraint("Equal", 22, 23))
sketch5.addConstraint(Sketcher.Constraint("Equal", 23, 24))
sketch5.addConstraint(Sketcher.Constraint("Equal", 24, 25))
sketch5.addConstraint(Sketcher.Constraint("Equal", 25, 26))
sketch5.addConstraint(Sketcher.Constraint("Equal", 26, 27))
sketch5.addConstraint(Sketcher.Constraint("Equal", 27, 28))
sketch5.addConstraint(Sketcher.Constraint("Equal", 28, 29))
sketch5.addConstraint(Sketcher.Constraint("Equal", 29, 30))
sketch5.addConstraint(Sketcher.Constraint("Equal", 30, 31))
sketch5.addConstraint(Sketcher.Constraint("Equal", 31, 32))
sketch5.addConstraint(Sketcher.Constraint("Horizontal", 0, 3, 1, 3))
sketch5.addConstraint(Sketcher.Constraint("Horizontal", 1, 3, 2, 3))
sketch5.addConstraint(Sketcher.Constraint("Horizontal", 2, 3, 3, 3))
sketch5.addConstraint(Sketcher.Constraint("Horizontal", 3, 3, 4, 3))
sketch5.addConstraint(Sketcher.Constraint("Horizontal", 4, 3, 5, 3))
sketch5.addConstraint(Sketcher.Constraint("Horizontal", 5, 3, 6, 3))
sketch5.addConstraint(Sketcher.Constraint("Horizontal", 6, 3, 7, 3))
sketch5.addConstraint(Sketcher.Constraint("Horizontal", 7, 3, 8, 3))
sketch5.addConstraint(Sketcher.Constraint("Horizontal", 8, 3, 9, 3))
sketch5.addConstraint(Sketcher.Constraint("Horizontal", 9, 3, 10, 3))
sketch5.addConstraint(Sketcher.Constraint("Horizontal", 10, 3, 11, 3))
sketch5.addConstraint(Sketcher.Constraint("Horizontal", 11, 3, 12, 3))
sketch5.addConstraint(Sketcher.Constraint("Horizontal", 12, 3, 13, 3))
sketch5.addConstraint(Sketcher.Constraint("Horizontal", 13, 3, 14, 3))
sketch5.addConstraint(Sketcher.Constraint("Horizontal", 14, 3, 15, 3))
sketch5.addConstraint(Sketcher.Constraint("Horizontal", 15, 3, 16, 3))
sketch5.addConstraint(Sketcher.Constraint("Horizontal", 16, 3, 17, 3))
sketch5.addConstraint(Sketcher.Constraint("Horizontal", 17, 3, 18, 3))
sketch5.addConstraint(Sketcher.Constraint("Horizontal", 18, 3, 19, 3))
sketch5.addConstraint(Sketcher.Constraint("Horizontal", 19, 3, 20, 3))
sketch5.addConstraint(Sketcher.Constraint("Horizontal", 20, 3, 21, 3))
sketch5.addConstraint(Sketcher.Constraint("Horizontal", 21, 3, 22, 3))
sketch5.addConstraint(Sketcher.Constraint("Horizontal", 22, 3, 23, 3))
sketch5.addConstraint(Sketcher.Constraint("Horizontal", 23, 3, 24, 3))
sketch5.addConstraint(Sketcher.Constraint("Horizontal", 24, 3, 25, 3))
sketch5.addConstraint(Sketcher.Constraint("Horizontal", 25, 3, 26, 3))
sketch5.addConstraint(Sketcher.Constraint("Horizontal", 26, 3, 27, 3))
sketch5.addConstraint(Sketcher.Constraint("Horizontal", 27, 3, 28, 3))
sketch5.addConstraint(Sketcher.Constraint("Horizontal", 28, 3, 29, 3))
sketch5.addConstraint(Sketcher.Constraint("Horizontal", 29, 3, 30, 3))
sketch5.addConstraint(Sketcher.Constraint("Horizontal", 30, 3, 31, 3))
sketch5.addConstraint(Sketcher.Constraint("Horizontal", 31, 3, 32, 3))
sketch5.addConstraint(Sketcher.Constraint("Diameter", 0, Q("0.14 in")))
sketch5.addConstraint(Sketcher.Constraint("DistanceX", 2, 3, 1, 3, Q("0.77 in")))
sketch5.addConstraint(Sketcher.Constraint("DistanceX", 3, 3, 0, 3, Q("0.77 in")))
sketch5.addConstraint(Sketcher.Constraint("DistanceX", 4, 3, 2, 3, Q("0.77 in")))
sketch5.addConstraint(Sketcher.Constraint("DistanceX", 5, 3, 3, 3, Q("0.77 in")))
sketch5.addConstraint(Sketcher.Constraint("DistanceX", 6, 3, 4, 3, Q("0.77 in")))
sketch5.addConstraint(Sketcher.Constraint("DistanceX", 7, 3, 5, 3, Q("0.77 in")))
sketch5.addConstraint(Sketcher.Constraint("DistanceX", 8, 3, 6, 3, Q("0.77 in")))
sketch5.addConstraint(Sketcher.Constraint("DistanceX", 9, 3, 7, 3, Q("0.77 in")))
sketch5.addConstraint(Sketcher.Constraint("DistanceX", 10, 3, 8, 3, Q("0.77 in")))
sketch5.addConstraint(Sketcher.Constraint("DistanceX", 11, 3, 9, 3, Q("0.77 in")))
sketch5.addConstraint(Sketcher.Constraint("DistanceX", 12, 3, 10, 3, Q("0.77 in")))
sketch5.addConstraint(Sketcher.Constraint("DistanceX", 13, 3, 11, 3, Q("0.77 in")))
sketch5.addConstraint(Sketcher.Constraint("DistanceX", 14, 3, 12, 3, Q("0.77 in")))
sketch5.addConstraint(Sketcher.Constraint("DistanceX", 15, 3, 13, 3, Q("0.77 in")))
sketch5.addConstraint(Sketcher.Constraint("DistanceX", 16, 3, 14, 3, Q("0.77 in")))
sketch5.addConstraint(Sketcher.Constraint("DistanceX", 17, 3, 15, 3, Q("0.77 in")))
sketch5.addConstraint(Sketcher.Constraint("DistanceX", 18, 3, 16, 3, Q("0.77 in")))
sketch5.addConstraint(Sketcher.Constraint("DistanceX", 19, 3, 17, 3, Q("0.77 in")))
sketch5.addConstraint(Sketcher.Constraint("DistanceX", 20, 3, 18, 3, Q("0.77 in")))
sketch5.addConstraint(Sketcher.Constraint("DistanceX", 21, 3, 19, 3, Q("0.77 in")))
sketch5.addConstraint(Sketcher.Constraint("DistanceX", 22, 3, 20, 3, Q("0.77 in")))
sketch5.addConstraint(Sketcher.Constraint("DistanceX", 23, 3, 21, 3, Q("0.77 in")))
sketch5.addConstraint(Sketcher.Constraint("DistanceX", 24, 3, 22, 3, Q("0.77 in")))
sketch5.addConstraint(Sketcher.Constraint("DistanceX", 25, 3, 23, 3, Q("0.77 in")))
sketch5.addConstraint(Sketcher.Constraint("DistanceX", 26, 3, 24, 3, Q("0.77 in")))
sketch5.addConstraint(Sketcher.Constraint("DistanceX", 27, 3, 25, 3, Q("0.77 in")))
sketch5.addConstraint(Sketcher.Constraint("DistanceX", 28, 3, 26, 3, Q("0.77 in")))
sketch5.addConstraint(Sketcher.Constraint("DistanceX", 29, 3, 27, 3, Q("0.77 in")))
sketch5.addConstraint(Sketcher.Constraint("DistanceX", 30, 3, 28, 3, Q("0.77 in")))
sketch5.addConstraint(Sketcher.Constraint("DistanceX", 31, 3, 29, 3, Q("0.77 in")))
sketch5.addConstraint(Sketcher.Constraint("DistanceX", 32, 3, 30, 3, Q("0.77 in")))
sketch5.addConstraint(Sketcher.Constraint("DistanceX", -1, 1, 7, 3, Q("9.8125 in")))
sketch5.addConstraint(Sketcher.Constraint("DistanceX", -1, 1, 32, 3, Q("0.1875 in")))
sketch5.addConstraint(Sketcher.Constraint("DistanceY", 0, 3, -1, 1, Q("0.3375 in")))
sketch5.setExpression("Constraints[64]", "Params.sketch5_diameter")
doc.recompute()
hole3 = doc.addObject("PartDesign::Hole", "Hole002")
body.addObject(hole3)
hole3.Profile = sketch5
hole3.ThreadType = "None"
hole3.setExpression("Diameter", "Params.hole3_diameter")
hole3.DepthType = "ThroughAll"
doc.recompute()

fillet = doc.addObject("PartDesign::Fillet", "Fillet")
body.addObject(fillet)
fillet.Base = (hole3, edges_at(hole3, [
    (-3.937, 322.453, -13.335),
    (-3.937, 0, -13.335),
    (3.937, 0, -13.335),
    (3.937, 322.453, -13.335),
]))
fillet.setExpression("Radius", "Params.fillet_radius")

doc.recompute()
